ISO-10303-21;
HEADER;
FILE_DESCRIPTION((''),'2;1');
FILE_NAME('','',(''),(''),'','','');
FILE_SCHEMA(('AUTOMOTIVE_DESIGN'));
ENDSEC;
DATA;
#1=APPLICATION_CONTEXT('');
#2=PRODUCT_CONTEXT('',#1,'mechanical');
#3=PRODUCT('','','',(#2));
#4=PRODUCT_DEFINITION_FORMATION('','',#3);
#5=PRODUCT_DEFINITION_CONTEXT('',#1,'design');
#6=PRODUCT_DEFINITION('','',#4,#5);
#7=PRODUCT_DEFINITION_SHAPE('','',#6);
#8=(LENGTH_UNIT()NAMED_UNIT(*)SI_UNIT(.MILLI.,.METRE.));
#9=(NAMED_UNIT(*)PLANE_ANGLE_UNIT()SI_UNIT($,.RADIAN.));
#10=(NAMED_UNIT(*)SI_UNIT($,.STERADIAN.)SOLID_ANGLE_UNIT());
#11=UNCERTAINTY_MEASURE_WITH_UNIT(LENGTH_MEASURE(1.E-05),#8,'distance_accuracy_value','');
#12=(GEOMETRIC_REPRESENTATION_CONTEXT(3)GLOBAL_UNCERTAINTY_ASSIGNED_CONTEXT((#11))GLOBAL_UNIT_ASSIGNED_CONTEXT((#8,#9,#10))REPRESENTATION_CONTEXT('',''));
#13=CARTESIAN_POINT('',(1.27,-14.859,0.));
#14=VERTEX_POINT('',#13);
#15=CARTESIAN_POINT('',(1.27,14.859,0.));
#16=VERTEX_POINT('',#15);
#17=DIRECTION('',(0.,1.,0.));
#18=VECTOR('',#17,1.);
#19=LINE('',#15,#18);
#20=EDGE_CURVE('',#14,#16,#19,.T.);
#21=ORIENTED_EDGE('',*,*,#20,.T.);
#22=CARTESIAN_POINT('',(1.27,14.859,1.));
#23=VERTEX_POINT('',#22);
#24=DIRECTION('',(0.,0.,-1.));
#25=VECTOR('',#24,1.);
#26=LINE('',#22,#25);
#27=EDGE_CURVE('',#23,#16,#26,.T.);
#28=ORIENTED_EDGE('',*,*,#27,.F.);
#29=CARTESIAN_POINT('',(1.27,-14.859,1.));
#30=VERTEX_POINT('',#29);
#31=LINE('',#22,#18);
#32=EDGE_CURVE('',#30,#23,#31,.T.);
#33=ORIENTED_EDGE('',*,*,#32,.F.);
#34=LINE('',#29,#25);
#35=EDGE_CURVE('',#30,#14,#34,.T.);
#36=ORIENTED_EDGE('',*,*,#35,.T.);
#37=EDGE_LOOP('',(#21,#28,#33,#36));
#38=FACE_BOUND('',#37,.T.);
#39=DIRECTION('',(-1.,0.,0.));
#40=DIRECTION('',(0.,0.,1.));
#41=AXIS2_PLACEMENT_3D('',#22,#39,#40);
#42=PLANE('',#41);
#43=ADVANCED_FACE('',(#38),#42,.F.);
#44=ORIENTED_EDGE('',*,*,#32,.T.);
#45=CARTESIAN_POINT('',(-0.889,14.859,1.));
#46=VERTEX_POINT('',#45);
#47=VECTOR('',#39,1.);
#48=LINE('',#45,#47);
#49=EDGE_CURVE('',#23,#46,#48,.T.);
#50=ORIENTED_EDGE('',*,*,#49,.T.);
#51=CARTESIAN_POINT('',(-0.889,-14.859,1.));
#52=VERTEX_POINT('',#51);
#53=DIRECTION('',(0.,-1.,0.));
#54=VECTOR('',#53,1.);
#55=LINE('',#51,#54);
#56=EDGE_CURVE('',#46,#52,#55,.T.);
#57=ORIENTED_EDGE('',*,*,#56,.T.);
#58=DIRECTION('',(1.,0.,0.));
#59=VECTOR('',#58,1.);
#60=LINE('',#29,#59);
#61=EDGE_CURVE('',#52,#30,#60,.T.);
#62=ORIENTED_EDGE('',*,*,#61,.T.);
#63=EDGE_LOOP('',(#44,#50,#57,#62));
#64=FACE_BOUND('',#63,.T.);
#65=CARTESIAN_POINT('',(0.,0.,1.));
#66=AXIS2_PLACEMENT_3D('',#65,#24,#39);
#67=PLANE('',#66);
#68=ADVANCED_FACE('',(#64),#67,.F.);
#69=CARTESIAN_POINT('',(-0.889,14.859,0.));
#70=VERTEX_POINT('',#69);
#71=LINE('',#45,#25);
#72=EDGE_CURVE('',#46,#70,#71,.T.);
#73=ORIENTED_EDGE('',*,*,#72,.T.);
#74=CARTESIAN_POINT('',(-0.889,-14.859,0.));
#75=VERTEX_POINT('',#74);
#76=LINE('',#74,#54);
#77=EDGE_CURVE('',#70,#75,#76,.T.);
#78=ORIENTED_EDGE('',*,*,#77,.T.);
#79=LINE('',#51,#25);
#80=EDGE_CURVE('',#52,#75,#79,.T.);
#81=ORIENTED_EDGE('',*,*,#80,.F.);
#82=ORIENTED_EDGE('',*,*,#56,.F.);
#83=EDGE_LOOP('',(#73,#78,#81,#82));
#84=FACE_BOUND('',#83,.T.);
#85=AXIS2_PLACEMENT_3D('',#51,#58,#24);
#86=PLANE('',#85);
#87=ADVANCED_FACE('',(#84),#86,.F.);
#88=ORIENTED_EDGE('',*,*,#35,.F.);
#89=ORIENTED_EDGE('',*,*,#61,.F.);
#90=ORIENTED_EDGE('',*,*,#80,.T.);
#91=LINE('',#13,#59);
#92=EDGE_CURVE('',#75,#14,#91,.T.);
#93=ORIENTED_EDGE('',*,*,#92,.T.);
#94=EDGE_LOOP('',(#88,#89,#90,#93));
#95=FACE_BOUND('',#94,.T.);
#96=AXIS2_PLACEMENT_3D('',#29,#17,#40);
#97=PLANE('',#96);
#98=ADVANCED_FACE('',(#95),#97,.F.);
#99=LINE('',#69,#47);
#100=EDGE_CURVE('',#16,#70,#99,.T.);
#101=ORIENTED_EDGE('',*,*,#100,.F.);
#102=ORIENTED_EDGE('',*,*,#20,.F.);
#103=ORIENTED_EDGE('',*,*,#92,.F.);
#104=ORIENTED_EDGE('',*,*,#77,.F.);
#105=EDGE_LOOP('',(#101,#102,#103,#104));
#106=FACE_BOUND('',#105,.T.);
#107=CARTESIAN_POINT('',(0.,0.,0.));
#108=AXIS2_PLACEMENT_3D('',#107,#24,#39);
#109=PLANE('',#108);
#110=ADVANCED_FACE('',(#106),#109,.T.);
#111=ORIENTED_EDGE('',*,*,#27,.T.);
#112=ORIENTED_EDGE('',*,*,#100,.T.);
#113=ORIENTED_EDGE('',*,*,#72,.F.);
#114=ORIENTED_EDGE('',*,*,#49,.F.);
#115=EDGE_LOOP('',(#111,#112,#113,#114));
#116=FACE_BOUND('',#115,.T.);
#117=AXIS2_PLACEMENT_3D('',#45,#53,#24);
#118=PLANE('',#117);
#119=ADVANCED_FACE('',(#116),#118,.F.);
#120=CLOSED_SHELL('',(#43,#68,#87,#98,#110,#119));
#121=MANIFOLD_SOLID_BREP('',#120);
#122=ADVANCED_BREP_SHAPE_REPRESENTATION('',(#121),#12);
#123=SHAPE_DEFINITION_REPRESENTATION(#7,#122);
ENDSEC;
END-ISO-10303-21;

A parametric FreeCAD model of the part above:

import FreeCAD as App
import Part
import Sketcher
Q = App.Units.Quantity

doc = App.newDocument("Part")
body = doc.addObject("PartDesign::Body", "Body")

# Sketch on XY plane
sketch1 = doc.addObject("Sketcher::SketchObject", "Sketch")
body.addObject(sketch1)
sketch1.AttachmentSupport = (doc.XY_Plane, [""])
sketch1.MapMode = "FlatFace"
sketch1.addGeometry([
    Part.LineSegment(App.Vector(-0.889, 14.859, 0), App.Vector(-0.889, -14.859, 0)),
    Part.LineSegment(App.Vector(-0.889, -14.859, 0), App.Vector(1.27, -14.859, 0)),
    Part.LineSegment(App.Vector(1.27, -14.859, 0), App.Vector(1.27, 14.859, 0)),
    Part.LineSegment(App.Vector(1.27, 14.859, 0), App.Vector(-0.889, 14.859, 0)),
], False)
sketch1.addConstraint([
    Sketcher.Constraint("Coincident", 0, 2, 1, 1),
    Sketcher.Constraint("Coincident", 1, 2, 2, 1),
    Sketcher.Constraint("Coincident", 2, 2, 3, 1),
    Sketcher.Constraint("Coincident", 3, 2, 0, 1),
    Sketcher.Constraint("Vertical", 0),
    Sketcher.Constraint("Horizontal", 1),
    Sketcher.Constraint("Vertical", 2),
    Sketcher.Constraint("Horizontal", 3),
    Sketcher.Constraint("DistanceY", 0, 2, 0, 1, Q("1.17 in")),
    Sketcher.Constraint("DistanceX", 1, 1, 1, 2, Q("0.085 in")),
    Sketcher.Constraint("DistanceX", -1, 1, 1, 2, Q("0.05 in")),
    Sketcher.Constraint("DistanceY", 0, 2, -1, 1, Q("0.585 in")),
])
pad1 = doc.addObject("PartDesign::Pad", "Pad")
body.addObject(pad1)
pad1.Profile = sketch1
pad1.Length = 1

doc.recompute()
